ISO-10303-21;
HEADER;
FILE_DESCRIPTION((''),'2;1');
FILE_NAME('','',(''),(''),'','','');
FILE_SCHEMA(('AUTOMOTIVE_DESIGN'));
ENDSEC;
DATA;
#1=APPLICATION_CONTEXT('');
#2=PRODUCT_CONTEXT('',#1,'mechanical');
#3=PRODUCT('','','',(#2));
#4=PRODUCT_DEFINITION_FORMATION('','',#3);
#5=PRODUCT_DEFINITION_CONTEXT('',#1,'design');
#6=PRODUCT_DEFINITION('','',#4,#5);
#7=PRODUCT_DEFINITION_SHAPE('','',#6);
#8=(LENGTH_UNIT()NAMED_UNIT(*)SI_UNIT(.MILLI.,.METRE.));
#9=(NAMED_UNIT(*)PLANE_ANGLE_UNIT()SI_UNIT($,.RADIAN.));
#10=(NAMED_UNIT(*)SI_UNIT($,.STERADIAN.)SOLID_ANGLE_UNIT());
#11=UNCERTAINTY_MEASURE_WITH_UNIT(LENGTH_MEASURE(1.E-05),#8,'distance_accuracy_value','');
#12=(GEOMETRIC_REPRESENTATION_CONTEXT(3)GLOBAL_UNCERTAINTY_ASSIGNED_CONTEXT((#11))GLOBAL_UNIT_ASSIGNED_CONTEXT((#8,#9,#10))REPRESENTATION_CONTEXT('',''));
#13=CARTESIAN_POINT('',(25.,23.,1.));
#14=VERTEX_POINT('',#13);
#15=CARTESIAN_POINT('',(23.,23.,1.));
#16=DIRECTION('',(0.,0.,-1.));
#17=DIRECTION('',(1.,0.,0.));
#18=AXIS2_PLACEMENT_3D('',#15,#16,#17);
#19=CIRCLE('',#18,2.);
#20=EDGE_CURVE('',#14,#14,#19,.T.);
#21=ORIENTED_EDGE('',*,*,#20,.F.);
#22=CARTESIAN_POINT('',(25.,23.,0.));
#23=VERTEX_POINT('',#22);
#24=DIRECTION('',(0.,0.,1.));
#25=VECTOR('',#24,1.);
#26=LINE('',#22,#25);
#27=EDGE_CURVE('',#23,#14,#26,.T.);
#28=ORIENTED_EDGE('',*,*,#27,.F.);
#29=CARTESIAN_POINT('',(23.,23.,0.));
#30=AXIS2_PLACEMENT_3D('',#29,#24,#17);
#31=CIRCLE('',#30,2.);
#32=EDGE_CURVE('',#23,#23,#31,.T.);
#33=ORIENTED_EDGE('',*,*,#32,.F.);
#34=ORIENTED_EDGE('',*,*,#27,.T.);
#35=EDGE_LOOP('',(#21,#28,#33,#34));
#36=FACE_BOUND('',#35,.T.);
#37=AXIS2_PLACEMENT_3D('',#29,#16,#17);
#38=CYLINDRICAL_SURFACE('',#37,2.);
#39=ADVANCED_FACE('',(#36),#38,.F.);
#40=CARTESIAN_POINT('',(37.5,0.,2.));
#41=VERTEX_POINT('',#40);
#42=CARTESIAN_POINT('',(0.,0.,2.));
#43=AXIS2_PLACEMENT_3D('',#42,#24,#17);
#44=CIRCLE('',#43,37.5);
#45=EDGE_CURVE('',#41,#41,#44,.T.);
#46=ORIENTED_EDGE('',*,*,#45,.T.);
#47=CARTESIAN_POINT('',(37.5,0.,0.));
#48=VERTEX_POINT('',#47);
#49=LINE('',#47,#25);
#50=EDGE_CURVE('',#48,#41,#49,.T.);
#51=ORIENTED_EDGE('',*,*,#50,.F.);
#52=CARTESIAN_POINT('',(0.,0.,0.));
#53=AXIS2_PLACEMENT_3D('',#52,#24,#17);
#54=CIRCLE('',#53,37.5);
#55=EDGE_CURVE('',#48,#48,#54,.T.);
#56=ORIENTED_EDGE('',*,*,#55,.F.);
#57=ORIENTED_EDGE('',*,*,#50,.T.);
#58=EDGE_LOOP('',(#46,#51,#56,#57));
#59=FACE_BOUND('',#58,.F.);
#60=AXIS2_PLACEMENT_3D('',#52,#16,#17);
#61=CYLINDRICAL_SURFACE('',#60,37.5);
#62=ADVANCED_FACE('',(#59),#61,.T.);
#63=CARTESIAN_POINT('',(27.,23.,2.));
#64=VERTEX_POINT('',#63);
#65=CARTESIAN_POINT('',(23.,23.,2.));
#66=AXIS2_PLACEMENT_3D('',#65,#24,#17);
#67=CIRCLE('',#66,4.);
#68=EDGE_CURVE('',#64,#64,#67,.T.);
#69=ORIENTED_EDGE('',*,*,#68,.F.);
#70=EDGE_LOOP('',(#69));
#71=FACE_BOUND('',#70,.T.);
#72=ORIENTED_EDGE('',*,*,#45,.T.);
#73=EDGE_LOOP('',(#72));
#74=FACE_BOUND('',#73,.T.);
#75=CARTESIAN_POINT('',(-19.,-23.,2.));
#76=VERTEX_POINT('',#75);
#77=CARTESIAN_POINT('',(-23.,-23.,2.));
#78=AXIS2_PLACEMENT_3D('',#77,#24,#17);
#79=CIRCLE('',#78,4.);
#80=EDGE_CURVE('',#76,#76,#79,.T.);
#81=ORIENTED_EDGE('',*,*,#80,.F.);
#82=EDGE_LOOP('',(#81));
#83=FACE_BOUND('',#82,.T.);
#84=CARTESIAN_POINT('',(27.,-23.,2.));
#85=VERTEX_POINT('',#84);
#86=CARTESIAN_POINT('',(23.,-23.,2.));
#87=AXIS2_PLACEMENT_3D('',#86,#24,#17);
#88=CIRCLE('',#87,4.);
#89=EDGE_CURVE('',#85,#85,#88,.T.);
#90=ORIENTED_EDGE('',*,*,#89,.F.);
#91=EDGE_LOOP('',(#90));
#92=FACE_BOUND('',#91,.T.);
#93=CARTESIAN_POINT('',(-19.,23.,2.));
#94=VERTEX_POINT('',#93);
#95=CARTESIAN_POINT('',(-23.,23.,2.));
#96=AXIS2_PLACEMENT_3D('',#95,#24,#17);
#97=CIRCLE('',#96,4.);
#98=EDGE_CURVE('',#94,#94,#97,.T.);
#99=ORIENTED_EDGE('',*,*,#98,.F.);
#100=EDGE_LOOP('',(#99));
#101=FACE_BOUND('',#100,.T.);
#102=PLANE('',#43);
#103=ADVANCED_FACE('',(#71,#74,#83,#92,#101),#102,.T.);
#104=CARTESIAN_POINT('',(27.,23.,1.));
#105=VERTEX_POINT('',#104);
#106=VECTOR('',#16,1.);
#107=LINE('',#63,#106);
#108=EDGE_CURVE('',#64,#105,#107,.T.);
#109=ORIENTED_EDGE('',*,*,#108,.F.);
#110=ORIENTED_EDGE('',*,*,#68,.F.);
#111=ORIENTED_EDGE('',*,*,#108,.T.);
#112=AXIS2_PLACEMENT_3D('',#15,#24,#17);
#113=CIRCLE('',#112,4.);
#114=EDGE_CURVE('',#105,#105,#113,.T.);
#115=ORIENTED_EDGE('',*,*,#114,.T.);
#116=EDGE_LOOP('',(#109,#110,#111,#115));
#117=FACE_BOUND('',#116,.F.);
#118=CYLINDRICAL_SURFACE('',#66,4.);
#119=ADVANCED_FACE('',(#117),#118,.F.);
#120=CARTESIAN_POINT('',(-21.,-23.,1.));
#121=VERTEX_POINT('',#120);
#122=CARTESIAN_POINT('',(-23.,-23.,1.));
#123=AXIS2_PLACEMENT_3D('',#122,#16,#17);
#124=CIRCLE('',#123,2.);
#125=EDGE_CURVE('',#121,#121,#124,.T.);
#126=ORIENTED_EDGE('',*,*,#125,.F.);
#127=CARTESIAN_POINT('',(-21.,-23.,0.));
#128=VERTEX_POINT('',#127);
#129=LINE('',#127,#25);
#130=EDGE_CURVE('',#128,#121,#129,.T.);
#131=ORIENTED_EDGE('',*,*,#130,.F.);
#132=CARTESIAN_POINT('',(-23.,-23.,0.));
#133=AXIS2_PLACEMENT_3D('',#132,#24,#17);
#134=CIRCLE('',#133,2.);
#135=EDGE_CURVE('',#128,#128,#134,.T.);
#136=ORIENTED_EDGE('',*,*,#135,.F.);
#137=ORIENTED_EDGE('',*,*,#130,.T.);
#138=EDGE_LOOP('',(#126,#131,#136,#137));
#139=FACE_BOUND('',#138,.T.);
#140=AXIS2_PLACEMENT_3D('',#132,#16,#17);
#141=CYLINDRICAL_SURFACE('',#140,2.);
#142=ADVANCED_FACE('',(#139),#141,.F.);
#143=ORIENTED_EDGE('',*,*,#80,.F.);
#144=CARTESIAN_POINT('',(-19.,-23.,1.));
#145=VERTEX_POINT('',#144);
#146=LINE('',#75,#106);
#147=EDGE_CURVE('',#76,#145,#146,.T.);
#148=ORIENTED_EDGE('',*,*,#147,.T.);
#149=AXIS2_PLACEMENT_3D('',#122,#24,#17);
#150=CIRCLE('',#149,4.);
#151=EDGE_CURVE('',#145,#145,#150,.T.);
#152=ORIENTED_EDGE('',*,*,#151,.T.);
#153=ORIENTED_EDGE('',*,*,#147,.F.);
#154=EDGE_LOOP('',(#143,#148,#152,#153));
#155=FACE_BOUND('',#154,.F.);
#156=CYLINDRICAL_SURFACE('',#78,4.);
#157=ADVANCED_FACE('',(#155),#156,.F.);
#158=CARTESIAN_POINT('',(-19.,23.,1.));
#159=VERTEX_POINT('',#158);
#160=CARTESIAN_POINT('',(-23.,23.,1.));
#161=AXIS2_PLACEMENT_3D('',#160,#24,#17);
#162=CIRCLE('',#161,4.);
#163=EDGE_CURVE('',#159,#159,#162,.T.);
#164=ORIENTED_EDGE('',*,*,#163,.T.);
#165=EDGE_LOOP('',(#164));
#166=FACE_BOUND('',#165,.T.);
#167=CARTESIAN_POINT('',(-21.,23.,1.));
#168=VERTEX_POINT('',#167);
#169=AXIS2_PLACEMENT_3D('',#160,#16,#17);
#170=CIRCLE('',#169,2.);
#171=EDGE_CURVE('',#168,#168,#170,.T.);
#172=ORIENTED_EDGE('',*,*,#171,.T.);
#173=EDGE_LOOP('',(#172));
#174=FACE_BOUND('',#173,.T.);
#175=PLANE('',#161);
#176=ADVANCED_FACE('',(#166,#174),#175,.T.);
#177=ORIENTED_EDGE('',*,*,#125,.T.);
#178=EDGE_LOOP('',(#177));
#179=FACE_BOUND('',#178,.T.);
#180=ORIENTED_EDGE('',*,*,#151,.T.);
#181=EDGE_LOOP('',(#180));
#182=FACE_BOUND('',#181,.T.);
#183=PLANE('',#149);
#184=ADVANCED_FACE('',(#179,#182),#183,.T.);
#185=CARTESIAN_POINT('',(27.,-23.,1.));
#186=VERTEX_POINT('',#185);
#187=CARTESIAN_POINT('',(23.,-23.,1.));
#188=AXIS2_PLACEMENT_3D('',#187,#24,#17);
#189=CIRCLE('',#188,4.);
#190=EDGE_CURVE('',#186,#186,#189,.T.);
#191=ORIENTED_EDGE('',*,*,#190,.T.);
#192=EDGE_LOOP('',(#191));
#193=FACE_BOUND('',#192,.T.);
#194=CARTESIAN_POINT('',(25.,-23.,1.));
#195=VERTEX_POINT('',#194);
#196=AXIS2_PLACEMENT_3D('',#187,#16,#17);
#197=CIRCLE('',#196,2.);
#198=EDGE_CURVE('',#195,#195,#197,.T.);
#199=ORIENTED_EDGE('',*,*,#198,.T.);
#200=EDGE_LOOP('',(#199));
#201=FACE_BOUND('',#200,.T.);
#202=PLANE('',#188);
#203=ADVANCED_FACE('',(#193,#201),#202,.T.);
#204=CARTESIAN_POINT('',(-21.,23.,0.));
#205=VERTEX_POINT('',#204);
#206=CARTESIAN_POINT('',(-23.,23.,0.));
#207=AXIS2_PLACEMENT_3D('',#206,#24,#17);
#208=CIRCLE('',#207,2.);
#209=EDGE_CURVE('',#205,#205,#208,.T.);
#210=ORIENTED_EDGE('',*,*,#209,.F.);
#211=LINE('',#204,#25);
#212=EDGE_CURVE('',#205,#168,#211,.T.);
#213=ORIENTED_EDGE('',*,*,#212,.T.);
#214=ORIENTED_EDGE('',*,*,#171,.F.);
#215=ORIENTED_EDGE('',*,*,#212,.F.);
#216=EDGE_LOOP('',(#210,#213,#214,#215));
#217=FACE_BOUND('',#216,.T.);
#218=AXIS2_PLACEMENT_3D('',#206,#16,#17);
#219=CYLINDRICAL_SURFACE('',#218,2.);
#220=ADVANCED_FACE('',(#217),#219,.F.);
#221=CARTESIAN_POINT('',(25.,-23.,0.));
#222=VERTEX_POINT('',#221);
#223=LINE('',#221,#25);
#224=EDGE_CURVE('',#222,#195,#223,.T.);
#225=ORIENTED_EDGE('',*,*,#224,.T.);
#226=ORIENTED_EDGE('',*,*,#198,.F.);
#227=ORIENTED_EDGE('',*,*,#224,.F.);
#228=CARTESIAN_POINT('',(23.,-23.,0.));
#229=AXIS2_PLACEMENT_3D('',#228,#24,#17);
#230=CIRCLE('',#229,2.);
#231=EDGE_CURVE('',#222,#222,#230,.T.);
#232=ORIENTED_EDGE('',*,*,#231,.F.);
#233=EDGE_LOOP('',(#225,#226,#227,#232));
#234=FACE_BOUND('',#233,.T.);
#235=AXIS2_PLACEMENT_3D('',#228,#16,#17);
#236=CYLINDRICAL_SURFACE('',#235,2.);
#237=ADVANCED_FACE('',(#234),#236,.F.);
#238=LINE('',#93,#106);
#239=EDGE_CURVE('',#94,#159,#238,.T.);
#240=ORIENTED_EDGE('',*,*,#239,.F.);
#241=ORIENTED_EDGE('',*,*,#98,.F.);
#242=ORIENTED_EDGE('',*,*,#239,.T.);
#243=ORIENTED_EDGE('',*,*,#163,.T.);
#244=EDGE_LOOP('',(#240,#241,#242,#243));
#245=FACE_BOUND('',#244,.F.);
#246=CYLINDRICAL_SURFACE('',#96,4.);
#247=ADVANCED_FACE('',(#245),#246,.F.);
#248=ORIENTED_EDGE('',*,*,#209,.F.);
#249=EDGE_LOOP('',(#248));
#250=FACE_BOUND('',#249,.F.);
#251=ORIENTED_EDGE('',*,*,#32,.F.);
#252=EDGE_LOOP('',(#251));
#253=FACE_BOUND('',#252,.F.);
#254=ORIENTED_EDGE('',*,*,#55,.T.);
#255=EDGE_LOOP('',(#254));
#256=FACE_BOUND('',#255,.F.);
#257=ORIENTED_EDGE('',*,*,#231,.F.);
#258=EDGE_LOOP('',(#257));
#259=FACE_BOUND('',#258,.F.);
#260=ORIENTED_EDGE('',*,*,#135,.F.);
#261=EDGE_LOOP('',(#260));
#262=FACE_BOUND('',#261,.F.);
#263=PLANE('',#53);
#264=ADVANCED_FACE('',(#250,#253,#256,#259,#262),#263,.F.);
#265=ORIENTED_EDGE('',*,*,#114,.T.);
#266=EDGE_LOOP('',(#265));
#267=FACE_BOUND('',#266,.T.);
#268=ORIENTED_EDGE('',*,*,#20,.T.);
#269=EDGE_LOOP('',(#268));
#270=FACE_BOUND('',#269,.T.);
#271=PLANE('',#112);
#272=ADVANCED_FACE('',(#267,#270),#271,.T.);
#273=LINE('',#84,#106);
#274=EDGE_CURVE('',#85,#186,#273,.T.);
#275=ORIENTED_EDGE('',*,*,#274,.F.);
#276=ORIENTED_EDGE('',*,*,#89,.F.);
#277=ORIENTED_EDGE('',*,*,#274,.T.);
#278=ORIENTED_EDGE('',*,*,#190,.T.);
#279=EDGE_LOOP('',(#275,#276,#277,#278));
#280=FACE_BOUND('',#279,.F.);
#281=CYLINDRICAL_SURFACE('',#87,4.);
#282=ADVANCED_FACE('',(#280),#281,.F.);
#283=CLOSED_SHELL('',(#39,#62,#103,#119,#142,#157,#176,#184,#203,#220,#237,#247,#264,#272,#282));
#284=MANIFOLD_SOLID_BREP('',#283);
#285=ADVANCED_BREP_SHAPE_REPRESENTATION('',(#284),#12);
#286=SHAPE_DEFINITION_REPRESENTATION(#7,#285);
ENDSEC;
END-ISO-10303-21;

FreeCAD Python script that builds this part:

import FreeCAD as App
import Part
import Sketcher

V = App.Vector
Q = App.Units.Quantity

doc = App.newDocument("Part")
body = doc.addObject("PartDesign::Body", "Body")

# Sketch on XY plane
sketch1 = doc.addObject("Sketcher::SketchObject", "Sketch")
body.addObject(sketch1)
sketch1.AttachmentSupport = (doc.XY_Plane, [""])
sketch1.MapMode = "FlatFace"
sketch1.addGeometry([
    Part.Circle(V(0, 0, 0), V(0, 0, 1), 37.5),  # 0
    Part.Circle(V(-23, -23, 0), V(0, 0, 1), 2),  # 1
    Part.Circle(V(23, -23, 0), V(0, 0, 1), 2),  # 2
    Part.Circle(V(-23, 23, 0), V(0, 0, 1), 2),  # 3
    Part.Circle(V(23, 23, 0), V(0, 0, 1), 2),  # 4
], False)
sketch1.addConstraint([
    Sketcher.Constraint("Coincident", 0, 3, -1, 1),
    Sketcher.Constraint("Equal", 1, 2),
    Sketcher.Constraint("Equal", 2, 3),
    Sketcher.Constraint("Equal", 3, 4),
    Sketcher.Constraint("Symmetric", 2, 3, 3, 3, -1, 1),
    Sketcher.Constraint("Symmetric", 1, 3, 4, 3, -1, 1),
    Sketcher.Constraint("Symmetric", 1, 3, 2, 3, -2),
    Sketcher.Constraint("Diameter", 0, Q("75 mm")),
    Sketcher.Constraint("Diameter", 1, Q("4 mm")),
    Sketcher.Constraint("DistanceX", 1, 3, -1, 1, Q("23 mm")),
    Sketcher.Constraint("DistanceY", 1, 3, -1, 1, Q("23 mm")),
])
pad1 = doc.addObject("PartDesign::Pad", "Pad")
body.addObject(pad1)
pad1.Profile = sketch1
pad1.Length = 2

# Sketch on XY plane
sketch2 = doc.addObject("Sketcher::SketchObject", "Sketch001")
body.addObject(sketch2)
sketch2.AttachmentSupport = (doc.XY_Plane, [""])
sketch2.MapMode = "FlatFace"
sketch2.AttachmentOffset = App.Placement(V(0, 0, 2), App.Rotation())
sketch2.addGeometry([
    Part.Circle(V(-23, 23, 0), V(0, 0, 1), 4),
    Part.Circle(V(23, 23, 0), V(0, 0, 1), 4),
    Part.Circle(V(-23, -23, 0), V(0, 0, 1), 4),
    Part.Circle(V(23, -23, 0), V(0, 0, 1), 4),
], False)
sketch2.addConstraint([
    Sketcher.Constraint("Equal", 0, 1),
    Sketcher.Constraint("Equal", 1, 2),
    Sketcher.Constraint("Equal", 2, 3),
    Sketcher.Constraint("Symmetric", 1, 3, 2, 3, -1, 1),
    Sketcher.Constraint("Symmetric", 0, 3, 3, 3, -1, 1),
    Sketcher.Constraint("Symmetric", 0, 3, 1, 3, -2),
    Sketcher.Constraint("Diameter", 0, Q("8 mm")),
    Sketcher.Constraint("DistanceX", 0, 3, -1, 1, Q("23 mm")),
    Sketcher.Constraint("DistanceY", -1, 1, 0, 3, Q("23 mm")),
])
pocket1 = doc.addObject("PartDesign::Pocket", "Pocket")
body.addObject(pocket1)
pocket1.Profile = sketch2
pocket1.Length = 1

doc.recompute()
